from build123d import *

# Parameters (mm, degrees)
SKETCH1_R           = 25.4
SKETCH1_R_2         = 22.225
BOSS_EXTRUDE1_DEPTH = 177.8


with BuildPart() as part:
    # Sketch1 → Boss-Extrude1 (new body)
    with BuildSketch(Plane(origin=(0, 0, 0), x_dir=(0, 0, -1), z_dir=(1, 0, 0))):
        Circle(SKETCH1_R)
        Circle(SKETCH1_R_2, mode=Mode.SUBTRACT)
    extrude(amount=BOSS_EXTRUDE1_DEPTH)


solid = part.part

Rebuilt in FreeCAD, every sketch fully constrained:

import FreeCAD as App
import Part
import Sketcher
Q = App.Units.Quantity

doc = App.newDocument("Part")
body = doc.addObject("PartDesign::Body", "Body")

sketch1 = body.newObject("Sketcher::SketchObject", "Sketch")
sketch1.AttachmentSupport = (doc.getObject("YZ_Plane"), [""])
sketch1.MapMode = "FlatFace"
sketch1.addGeometry([
    Part.Circle(App.Vector(0, 0, 0), App.Vector(0, 0, 1), 25.4),
    Part.Circle(App.Vector(0, 0, 0), App.Vector(0, 0, 1), 22.225),
], False)
sketch1.addConstraint([
    Sketcher.Constraint("Coincident", 0, 3, -1, 1),
    Sketcher.Constraint("Coincident", 1, 3, -1, 1),
    Sketcher.Constraint("Diameter", 0, Q("2 in")),
    Sketcher.Constraint("Diameter", 1, Q("1.75 in")),
])
pad1 = body.newObject("PartDesign::Pad", "Pad")
pad1.Profile = sketch1
pad1.Length = Q("7 in")

doc.recompute()
